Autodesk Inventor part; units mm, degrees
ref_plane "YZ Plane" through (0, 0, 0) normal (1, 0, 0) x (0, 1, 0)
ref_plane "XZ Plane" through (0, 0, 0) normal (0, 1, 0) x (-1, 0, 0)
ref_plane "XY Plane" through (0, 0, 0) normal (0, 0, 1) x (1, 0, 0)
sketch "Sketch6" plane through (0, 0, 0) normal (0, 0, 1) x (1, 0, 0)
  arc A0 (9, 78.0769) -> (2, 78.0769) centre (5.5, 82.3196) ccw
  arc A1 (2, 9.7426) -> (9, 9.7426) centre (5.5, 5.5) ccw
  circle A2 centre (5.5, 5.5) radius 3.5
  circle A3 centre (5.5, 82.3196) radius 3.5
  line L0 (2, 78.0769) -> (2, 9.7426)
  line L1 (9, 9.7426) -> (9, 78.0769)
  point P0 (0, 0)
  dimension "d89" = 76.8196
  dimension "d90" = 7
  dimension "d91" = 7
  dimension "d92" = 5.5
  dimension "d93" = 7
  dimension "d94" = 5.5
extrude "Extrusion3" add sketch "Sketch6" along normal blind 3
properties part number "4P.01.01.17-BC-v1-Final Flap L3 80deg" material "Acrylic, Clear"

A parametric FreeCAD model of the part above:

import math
import FreeCAD as App
import Part
import Sketcher

doc = App.newDocument("Part")
body = doc.addObject("PartDesign::Body", "Body")

sketch1 = body.newObject("Sketcher::SketchObject", "Sketch")
sketch1.AttachmentSupport = (doc.getObject("XY_Plane"), [""])
sketch1.MapMode = "FlatFace"
sketch1.addGeometry([
    Part.LineSegment(App.Vector(9, 9.7, 0), App.Vector(9, 78.1, 0)),
    Part.ArcOfCircle(Part.Circle(App.Vector(5.5, 82.3, 0), App.Vector(0, 0, 1), 5.5), math.radians(-50), math.radians(230)),
    Part.LineSegment(App.Vector(2, 78.1, 0), App.Vector(2, 9.7, 0)),
    Part.ArcOfCircle(Part.Circle(App.Vector(5.5, 5.5, 0), App.Vector(0, 0, 1), 5.5), math.radians(130), math.radians(410)),
    Part.Circle(App.Vector(5.5, 5.5, 0), App.Vector(0, 0, 1), 3.5),
    Part.Circle(App.Vector(5.5, 82.3, 0), App.Vector(0, 0, 1), 3.5),
], False)
sketch1.addConstraint([
    Sketcher.Constraint("Coincident", 0, 2, 1, 1),
    Sketcher.Constraint("Coincident", 1, 2, 2, 1),
    Sketcher.Constraint("Coincident", 2, 2, 3, 1),
    Sketcher.Constraint("Coincident", 3, 2, 0, 1),
    Sketcher.Constraint("Vertical", 0),
    Sketcher.Constraint("Vertical", 2),
    Sketcher.Constraint("Coincident", 4, 3, 3, 3),
    Sketcher.Constraint("Coincident", 5, 3, 1, 3),
    Sketcher.Constraint("Equal", 1, 3),
    Sketcher.Constraint("Equal", 4, 5),
    Sketcher.Constraint("Horizontal", 0, 2, 1, 2),
    Sketcher.Constraint("Horizontal", 2, 2, 3, 2),
    Sketcher.Constraint("Diameter", 4, 7.0),
    Sketcher.Constraint("Radius", 1, 5.5),
    Sketcher.Constraint("DistanceX", 1, 2, 0, 2, 7.0),
    Sketcher.Constraint("DistanceX", -1, 1, 1, 3, 5.5),
    Sketcher.Constraint("DistanceY", -1, 1, 3, 3, 5.5),
    Sketcher.Constraint("DistanceY", 3, 3, 1, 3, 76.8196),
])
pad1 = body.newObject("PartDesign::Pad", "Pad")
pad1.Profile = sketch1
pad1.Length = 3

doc.recompute()
